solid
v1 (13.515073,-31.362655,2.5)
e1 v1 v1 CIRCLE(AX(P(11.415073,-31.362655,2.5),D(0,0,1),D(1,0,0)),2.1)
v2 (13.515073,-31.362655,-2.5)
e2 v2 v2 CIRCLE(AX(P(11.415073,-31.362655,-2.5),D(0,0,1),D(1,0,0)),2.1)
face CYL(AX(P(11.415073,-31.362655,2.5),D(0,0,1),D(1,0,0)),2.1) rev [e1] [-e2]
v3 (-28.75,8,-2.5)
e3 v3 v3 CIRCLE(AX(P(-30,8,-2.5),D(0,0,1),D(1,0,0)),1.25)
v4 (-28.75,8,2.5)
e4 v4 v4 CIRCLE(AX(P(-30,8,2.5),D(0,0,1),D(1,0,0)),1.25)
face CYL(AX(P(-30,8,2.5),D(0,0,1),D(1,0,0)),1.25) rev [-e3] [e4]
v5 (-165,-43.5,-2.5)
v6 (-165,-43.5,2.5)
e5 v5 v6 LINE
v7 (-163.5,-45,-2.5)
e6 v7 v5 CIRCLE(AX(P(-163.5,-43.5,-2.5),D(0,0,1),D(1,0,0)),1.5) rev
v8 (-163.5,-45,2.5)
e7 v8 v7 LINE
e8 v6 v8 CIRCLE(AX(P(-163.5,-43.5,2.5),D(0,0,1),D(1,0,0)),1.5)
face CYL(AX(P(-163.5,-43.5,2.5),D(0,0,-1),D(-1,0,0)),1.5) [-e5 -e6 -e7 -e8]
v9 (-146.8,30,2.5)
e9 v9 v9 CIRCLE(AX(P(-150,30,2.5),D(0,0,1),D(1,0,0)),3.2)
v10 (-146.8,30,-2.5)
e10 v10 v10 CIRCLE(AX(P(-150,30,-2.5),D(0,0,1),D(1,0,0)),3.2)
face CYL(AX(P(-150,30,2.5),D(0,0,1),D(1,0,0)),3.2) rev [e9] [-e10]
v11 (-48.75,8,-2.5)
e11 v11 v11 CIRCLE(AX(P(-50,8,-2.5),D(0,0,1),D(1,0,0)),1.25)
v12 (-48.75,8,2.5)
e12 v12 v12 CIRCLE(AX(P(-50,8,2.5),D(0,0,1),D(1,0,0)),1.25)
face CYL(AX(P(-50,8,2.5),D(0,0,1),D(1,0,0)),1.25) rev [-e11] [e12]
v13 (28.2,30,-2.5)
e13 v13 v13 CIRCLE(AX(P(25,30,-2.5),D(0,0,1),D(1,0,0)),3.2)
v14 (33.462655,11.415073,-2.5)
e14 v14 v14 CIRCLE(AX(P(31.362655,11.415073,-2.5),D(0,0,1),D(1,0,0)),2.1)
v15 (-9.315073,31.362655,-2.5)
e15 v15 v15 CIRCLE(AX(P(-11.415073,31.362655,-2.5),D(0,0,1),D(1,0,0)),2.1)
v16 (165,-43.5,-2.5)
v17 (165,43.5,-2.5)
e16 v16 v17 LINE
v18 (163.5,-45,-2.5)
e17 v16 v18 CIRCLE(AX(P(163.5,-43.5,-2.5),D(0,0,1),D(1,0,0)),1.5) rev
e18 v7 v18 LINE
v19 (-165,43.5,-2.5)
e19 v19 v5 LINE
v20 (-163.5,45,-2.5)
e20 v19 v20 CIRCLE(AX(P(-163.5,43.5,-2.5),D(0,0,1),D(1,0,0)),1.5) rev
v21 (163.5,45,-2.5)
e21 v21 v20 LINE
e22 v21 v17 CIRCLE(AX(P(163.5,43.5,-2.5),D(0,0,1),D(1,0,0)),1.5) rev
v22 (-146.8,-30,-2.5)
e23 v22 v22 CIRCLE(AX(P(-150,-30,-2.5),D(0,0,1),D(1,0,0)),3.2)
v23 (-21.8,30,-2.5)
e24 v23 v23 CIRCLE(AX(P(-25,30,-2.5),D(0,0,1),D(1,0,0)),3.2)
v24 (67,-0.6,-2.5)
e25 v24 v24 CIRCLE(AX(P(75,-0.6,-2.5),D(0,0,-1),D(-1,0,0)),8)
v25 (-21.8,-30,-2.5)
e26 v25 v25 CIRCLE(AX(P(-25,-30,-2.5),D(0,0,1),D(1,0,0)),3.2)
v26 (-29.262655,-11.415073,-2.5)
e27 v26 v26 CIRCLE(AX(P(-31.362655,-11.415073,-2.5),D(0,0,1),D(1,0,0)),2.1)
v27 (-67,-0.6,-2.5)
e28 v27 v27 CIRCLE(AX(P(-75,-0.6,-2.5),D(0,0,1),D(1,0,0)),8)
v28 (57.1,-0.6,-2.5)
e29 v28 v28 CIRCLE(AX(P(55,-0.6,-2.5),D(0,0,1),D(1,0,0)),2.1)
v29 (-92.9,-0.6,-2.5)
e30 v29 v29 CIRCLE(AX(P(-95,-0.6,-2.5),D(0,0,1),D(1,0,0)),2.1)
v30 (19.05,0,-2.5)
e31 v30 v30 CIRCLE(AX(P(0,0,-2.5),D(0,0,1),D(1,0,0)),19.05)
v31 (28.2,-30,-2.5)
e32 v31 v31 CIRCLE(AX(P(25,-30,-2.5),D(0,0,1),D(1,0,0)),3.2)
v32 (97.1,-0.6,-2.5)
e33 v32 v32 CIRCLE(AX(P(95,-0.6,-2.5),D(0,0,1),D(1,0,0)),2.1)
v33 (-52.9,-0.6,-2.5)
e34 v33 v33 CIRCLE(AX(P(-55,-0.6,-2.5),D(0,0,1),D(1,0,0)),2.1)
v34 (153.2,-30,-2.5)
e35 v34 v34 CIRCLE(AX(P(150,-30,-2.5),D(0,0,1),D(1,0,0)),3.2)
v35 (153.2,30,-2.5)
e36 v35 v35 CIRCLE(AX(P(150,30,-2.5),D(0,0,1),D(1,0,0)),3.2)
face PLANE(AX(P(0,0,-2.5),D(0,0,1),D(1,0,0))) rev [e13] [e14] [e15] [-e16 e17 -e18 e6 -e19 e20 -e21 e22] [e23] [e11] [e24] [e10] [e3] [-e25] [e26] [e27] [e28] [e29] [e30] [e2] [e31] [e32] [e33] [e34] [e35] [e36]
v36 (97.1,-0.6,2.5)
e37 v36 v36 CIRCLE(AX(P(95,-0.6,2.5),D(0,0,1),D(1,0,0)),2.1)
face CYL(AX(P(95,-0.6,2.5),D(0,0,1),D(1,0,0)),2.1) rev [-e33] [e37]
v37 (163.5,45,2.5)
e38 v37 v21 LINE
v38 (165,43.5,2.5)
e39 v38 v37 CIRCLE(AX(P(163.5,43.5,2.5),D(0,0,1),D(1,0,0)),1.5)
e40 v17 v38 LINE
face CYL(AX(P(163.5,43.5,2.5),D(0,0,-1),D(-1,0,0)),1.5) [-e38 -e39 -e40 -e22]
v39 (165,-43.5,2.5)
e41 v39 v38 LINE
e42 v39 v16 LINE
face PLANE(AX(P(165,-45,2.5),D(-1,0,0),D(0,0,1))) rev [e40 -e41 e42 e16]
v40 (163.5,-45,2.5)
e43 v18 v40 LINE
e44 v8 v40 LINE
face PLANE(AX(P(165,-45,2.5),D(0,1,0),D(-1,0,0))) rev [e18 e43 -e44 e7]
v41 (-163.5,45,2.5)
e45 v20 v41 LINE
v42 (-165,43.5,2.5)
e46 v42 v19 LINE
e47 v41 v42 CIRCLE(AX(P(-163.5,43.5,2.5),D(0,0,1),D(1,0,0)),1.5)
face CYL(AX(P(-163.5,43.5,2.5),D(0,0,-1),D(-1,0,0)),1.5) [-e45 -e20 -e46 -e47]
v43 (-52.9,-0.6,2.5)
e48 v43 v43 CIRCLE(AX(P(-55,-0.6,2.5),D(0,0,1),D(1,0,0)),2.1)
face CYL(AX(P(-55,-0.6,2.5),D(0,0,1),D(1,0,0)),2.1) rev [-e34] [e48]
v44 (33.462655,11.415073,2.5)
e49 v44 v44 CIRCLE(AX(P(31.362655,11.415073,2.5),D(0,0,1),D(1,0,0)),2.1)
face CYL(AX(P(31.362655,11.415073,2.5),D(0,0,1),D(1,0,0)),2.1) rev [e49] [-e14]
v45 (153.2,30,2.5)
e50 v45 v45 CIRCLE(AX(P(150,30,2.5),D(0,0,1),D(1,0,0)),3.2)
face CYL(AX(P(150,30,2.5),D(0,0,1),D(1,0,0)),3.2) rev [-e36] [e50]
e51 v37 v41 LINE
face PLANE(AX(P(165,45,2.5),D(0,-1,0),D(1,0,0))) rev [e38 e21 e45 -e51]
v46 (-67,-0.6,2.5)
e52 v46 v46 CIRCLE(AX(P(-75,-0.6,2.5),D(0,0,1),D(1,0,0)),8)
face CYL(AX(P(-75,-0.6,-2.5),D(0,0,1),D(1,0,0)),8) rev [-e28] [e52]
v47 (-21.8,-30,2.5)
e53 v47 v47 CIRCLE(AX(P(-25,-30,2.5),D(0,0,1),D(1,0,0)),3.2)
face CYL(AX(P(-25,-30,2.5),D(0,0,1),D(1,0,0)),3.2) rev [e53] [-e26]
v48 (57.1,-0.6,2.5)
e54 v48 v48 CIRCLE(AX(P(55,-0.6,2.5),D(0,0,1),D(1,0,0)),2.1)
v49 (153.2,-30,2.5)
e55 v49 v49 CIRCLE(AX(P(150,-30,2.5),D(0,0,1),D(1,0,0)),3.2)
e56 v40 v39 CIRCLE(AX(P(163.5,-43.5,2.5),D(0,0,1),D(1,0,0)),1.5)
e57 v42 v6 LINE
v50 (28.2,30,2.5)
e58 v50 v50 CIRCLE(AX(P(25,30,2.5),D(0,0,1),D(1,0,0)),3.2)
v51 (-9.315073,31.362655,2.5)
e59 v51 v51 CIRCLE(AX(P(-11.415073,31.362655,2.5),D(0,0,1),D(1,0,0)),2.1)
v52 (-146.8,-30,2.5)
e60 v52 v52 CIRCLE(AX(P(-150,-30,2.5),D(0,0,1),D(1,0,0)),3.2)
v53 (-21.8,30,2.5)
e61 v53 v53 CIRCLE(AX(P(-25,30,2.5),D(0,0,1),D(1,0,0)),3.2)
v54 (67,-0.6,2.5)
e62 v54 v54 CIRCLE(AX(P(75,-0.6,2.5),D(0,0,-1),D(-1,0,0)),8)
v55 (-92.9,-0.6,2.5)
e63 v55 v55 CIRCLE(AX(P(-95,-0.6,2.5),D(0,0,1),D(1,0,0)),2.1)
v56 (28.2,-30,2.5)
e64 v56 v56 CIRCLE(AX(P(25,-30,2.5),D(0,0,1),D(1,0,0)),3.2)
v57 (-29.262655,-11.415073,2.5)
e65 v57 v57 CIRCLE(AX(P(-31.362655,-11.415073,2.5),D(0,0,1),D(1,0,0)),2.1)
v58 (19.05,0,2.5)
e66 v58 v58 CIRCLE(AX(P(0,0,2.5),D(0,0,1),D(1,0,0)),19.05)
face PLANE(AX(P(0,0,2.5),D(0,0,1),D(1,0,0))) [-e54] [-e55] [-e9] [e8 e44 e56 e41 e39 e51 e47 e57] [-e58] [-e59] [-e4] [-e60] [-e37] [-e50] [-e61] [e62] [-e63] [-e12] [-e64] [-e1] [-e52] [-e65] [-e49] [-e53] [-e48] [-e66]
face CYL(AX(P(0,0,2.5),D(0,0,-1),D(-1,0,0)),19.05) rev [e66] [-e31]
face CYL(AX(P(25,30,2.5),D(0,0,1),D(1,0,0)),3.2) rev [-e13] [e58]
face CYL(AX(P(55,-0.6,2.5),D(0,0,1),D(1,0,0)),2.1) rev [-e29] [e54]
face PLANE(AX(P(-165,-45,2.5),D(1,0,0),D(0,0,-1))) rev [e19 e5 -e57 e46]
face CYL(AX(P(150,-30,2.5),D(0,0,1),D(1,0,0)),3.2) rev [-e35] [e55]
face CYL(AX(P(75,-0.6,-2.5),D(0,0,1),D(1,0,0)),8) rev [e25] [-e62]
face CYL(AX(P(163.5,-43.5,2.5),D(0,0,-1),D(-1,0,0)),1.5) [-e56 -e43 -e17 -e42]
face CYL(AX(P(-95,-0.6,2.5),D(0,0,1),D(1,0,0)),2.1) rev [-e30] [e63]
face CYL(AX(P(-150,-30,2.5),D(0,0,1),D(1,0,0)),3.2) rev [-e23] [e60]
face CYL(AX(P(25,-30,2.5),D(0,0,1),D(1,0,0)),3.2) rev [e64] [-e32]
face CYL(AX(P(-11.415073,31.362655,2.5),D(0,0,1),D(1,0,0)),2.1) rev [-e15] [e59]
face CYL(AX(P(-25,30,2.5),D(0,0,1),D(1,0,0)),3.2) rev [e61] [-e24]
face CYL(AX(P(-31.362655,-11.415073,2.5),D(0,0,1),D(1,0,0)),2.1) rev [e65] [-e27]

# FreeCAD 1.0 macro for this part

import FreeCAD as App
import Part
import Sketcher

V = App.Vector


def edges_at(feature, points):
    """Names of the edges that pass closest to the given points."""
    edges = feature.Shape.Edges
    near = lambda p: min(range(len(edges)), key=lambda i: edges[i].distToShape(Part.Vertex(*p))[0])
    return sorted({f"Edge{near(p) + 1}" for p in points})

doc = App.newDocument("Part")
params = doc.addObject("Spreadsheet::Sheet", "Params")
for row, (alias, value) in enumerate([
    ("sketch1_diameter", "38.1 mm"),
    ("sketch1_width", "330 mm"),
    ("sketch1_height", "90 mm"),
    ("pad1_length", "5 mm"),
    ("sketch2_diameter", "6.4 mm"),
    ("hole_diameter", "6.4 mm"),
    ("sketch3_diameter", "16 mm"),
    ("sketch4_diameter", "4.2 mm"),
    ("hole2_diameter", "4.2 mm"),
    ("sketch5_diameter", "4.2 mm"),
    ("hole3_diameter", "4.2 mm"),
    ("fillet_radius", "1.5 mm"),
    ("sketch6_diameter", "2.5 mm"),
    ("hole4_diameter", "2.5 mm"),
], start=1):
    params.set(f"A{row}", alias)
    params.set(f"B{row}", "=" + value)
    params.setAlias(f"B{row}", alias)

body = doc.addObject("PartDesign::Body", "Body")

sketch1 = body.newObject("Sketcher::SketchObject", "Sketch")
sketch1.AttachmentSupport = (doc.getObject("XY_Plane"), [""])
sketch1.MapMode = "FlatFace"
sketch1.addGeometry(Part.LineSegment(V(-165, 45, 0), V(-165, -45, 0)), False)
sketch1.addGeometry(Part.LineSegment(V(-165, -45, 0), V(165, -45, 0)), False)
sketch1.addGeometry(Part.LineSegment(V(165, -45, 0), V(165, 45, 0)), False)
sketch1.addGeometry(Part.LineSegment(V(165, 45, 0), V(-165, 45, 0)), False)
sketch1.addGeometry(Part.Circle(V(0, 0, 0), V(0, 0, 1), 19), False)
sketch1.addConstraint(Sketcher.Constraint("Coincident", 0, 2, 1, 1))
sketch1.addConstraint(Sketcher.Constraint("Coincident", 1, 2, 2, 1))
sketch1.addConstraint(Sketcher.Constraint("Coincident", 2, 2, 3, 1))
sketch1.addConstraint(Sketcher.Constraint("Coincident", 3, 2, 0, 1))
sketch1.addConstraint(Sketcher.Constraint("Vertical", 0))
sketch1.addConstraint(Sketcher.Constraint("Horizontal", 1))
sketch1.addConstraint(Sketcher.Constraint("Vertical", 2))
sketch1.addConstraint(Sketcher.Constraint("Horizontal", 3))
sketch1.addConstraint(Sketcher.Constraint("Coincident", 4, 3, -1, 1))
sketch1.addConstraint(Sketcher.Constraint("Symmetric", 0, 2, 2, 2, -1, 1))
sketch1.addConstraint(Sketcher.Constraint("Diameter", 4, 38.1))
sketch1.addConstraint(Sketcher.Constraint("DistanceX", 1, 1, 1, 2, 330.0))
sketch1.addConstraint(Sketcher.Constraint("DistanceY", 0, 2, 0, 1, 90.0))
sketch1.setExpression("Constraints[10]", "Params.sketch1_diameter")
sketch1.setExpression("Constraints[11]", "Params.sketch1_width")
sketch1.setExpression("Constraints[12]", "Params.sketch1_height")
pad1 = body.newObject("PartDesign::Pad", "Pad")
pad1.Profile = sketch1
pad1.setExpression("Length", "Params.pad1_length")
pad1.Midplane = True

sketch2 = body.newObject("Sketcher::SketchObject", "Sketch001")
sketch2.AttachmentSupport = (doc.getObject("XY_Plane"), [""])
sketch2.MapMode = "FlatFace"
sketch2.AttachmentOffset = App.Placement(V(0, 0, 2.5), App.Rotation())
sketch2.addGeometry(Part.Circle(V(-150, 30, 0), V(0, 0, 1), 3.2), False)
sketch2.addGeometry(Part.Circle(V(-25, 30, 0), V(0, 0, 1), 3.2), False)
sketch2.addGeometry(Part.Circle(V(-25, -30, 0), V(0, 0, 1), 3.2), False)
sketch2.addGeometry(Part.Circle(V(-150, -30, 0), V(0, 0, 1), 3.2), False)
sketch2.addConstraint(Sketcher.Constraint("Equal", 0, 1))
sketch2.addConstraint(Sketcher.Constraint("Equal", 1, 2))
sketch2.addConstraint(Sketcher.Constraint("Equal", 2, 3))
sketch2.addConstraint(Sketcher.Constraint("Symmetric", 1, 3, 2, 3, -1))
sketch2.addConstraint(Sketcher.Constraint("Symmetric", 0, 3, 3, 3, -1))
sketch2.addConstraint(Sketcher.Constraint("Horizontal", 0, 3, 1, 3))
sketch2.addConstraint(Sketcher.Constraint("Diameter", 0, 6.4))
sketch2.addConstraint(Sketcher.Constraint("DistanceX", 0, 3, -1, 1, 150.0))
sketch2.addConstraint(Sketcher.Constraint("DistanceY", -1, 1, 0, 3, 30.0))
sketch2.addConstraint(Sketcher.Constraint("DistanceX", 1, 3, -1, 1, 25.0))
sketch2.setExpression("Constraints[6]", "Params.sketch2_diameter")
doc.recompute()
hole = body.newObject("PartDesign::Hole", "Hole")
hole.Profile = sketch2
hole.ThreadType = "None"
hole.setExpression("Diameter", "Params.hole_diameter")
hole.DepthType = "ThroughAll"
doc.recompute()

mirrored = body.newObject("PartDesign::Mirrored", "Mirrored")
mirrored.Originals = [hole]
mirrored.MirrorPlane = (doc.getObject("YZ_Plane"), [""])
body.Tip = mirrored

sketch3 = body.newObject("Sketcher::SketchObject", "Sketch002")
sketch3.AttachmentSupport = (doc.getObject("XY_Plane"), [""])
sketch3.MapMode = "FlatFace"
sketch3.AttachmentOffset = App.Placement(V(0, 0, 2.5), App.Rotation())
sketch3.addGeometry(Part.Circle(V(-75, -1, 0), V(0, 0, 1), 8), False)
sketch3.addConstraint(Sketcher.Constraint("Diameter", 0, 16.0))
sketch3.addConstraint(Sketcher.Constraint("DistanceX", 0, 3, -1, 1, 75.0))
sketch3.addConstraint(Sketcher.Constraint("DistanceY", 0, 3, -1, 1, 0.6))
sketch3.setExpression("Constraints[0]", "Params.sketch3_diameter")
pocket1 = body.newObject("PartDesign::Pocket", "Pocket")
pocket1.Profile = sketch3
pocket1.Type = "ThroughAll"

sketch4 = body.newObject("Sketcher::SketchObject", "Sketch003")
sketch4.AttachmentSupport = (doc.getObject("XY_Plane"), [""])
sketch4.MapMode = "FlatFace"
sketch4.AttachmentOffset = App.Placement(V(0, 0, 2.5), App.Rotation())
sketch4.addGeometry(Part.Circle(V(-95, -0.6, 0), V(0, 0, 1), 2.1), False)
sketch4.addGeometry(Part.Circle(V(-55, -0.6, 0), V(0, 0, 1), 2.1), False)
sketch4.addConstraint(Sketcher.Constraint("Equal", 0, 1))
sketch4.addConstraint(Sketcher.Constraint("Horizontal", 0, 3, 1, 3))
sketch4.addConstraint(Sketcher.Constraint("Diameter", 0, 4.2))
sketch4.addConstraint(Sketcher.Constraint("DistanceX", 0, 3, -1, 1, 95.0))
sketch4.addConstraint(Sketcher.Constraint("DistanceX", 1, 3, -1, 1, 55.0))
sketch4.addConstraint(Sketcher.Constraint("DistanceY", 0, 3, -1, 1, 0.6))
sketch4.setExpression("Constraints[2]", "Params.sketch4_diameter")
doc.recompute()
hole2 = body.newObject("PartDesign::Hole", "Hole001")
hole2.Profile = sketch4
hole2.ThreadType = "None"
hole2.setExpression("Diameter", "Params.hole2_diameter")
hole2.DepthType = "ThroughAll"
doc.recompute()

mirrored2 = body.newObject("PartDesign::Mirrored", "Mirrored001")
mirrored2.Originals = [pocket1, hole2]
mirrored2.MirrorPlane = (doc.getObject("YZ_Plane"), [""])
body.Tip = mirrored2

sketch5 = body.newObject("Sketcher::SketchObject", "Sketch004")
sketch5.AttachmentSupport = (doc.getObject("XY_Plane"), [""])
sketch5.MapMode = "FlatFace"
sketch5.AttachmentOffset = App.Placement(V(0, 0, 2.5), App.Rotation())
sketch5.addGeometry(Part.Circle(V(-11.4, 31.4, 0), V(0, 0, 1), 2.1), False)
sketch5.addGeometry(Part.Circle(V(11.4, -31.4, 0), V(0, 0, 1), 2.1), False)
sketch5.addGeometry(Part.Circle(V(-31.4, -11.4, 0), V(0, 0, 1), 2.1), False)
sketch5.addGeometry(Part.Circle(V(31.4, 11.4, 0), V(0, 0, 1), 2.1), False)
sketch5.addConstraint(Sketcher.Constraint("Equal", 0, 1))
sketch5.addConstraint(Sketcher.Constraint("Equal", 1, 2))
sketch5.addConstraint(Sketcher.Constraint("Equal", 2, 3))
sketch5.addConstraint(Sketcher.Constraint("Symmetric", 0, 3, 1, 3, -1, 1))
sketch5.addConstraint(Sketcher.Constraint("Symmetric", 2, 3, 3, 3, -1, 1))
sketch5.addConstraint(Sketcher.Constraint("Diameter", 0, 4.2))
sketch5.addConstraint(Sketcher.Constraint("DistanceY", 1, 3, 0, 3, 62.72531))
sketch5.addConstraint(Sketcher.Constraint("DistanceX", 2, 3, 0, 3, 19.947582))
sketch5.addConstraint(Sketcher.Constraint("DistanceY", 1, 3, 2, 3, 19.947582))
sketch5.addConstraint(Sketcher.Constraint("DistanceX", 2, 3, 3, 3, 62.72531))
sketch5.setExpression("Constraints[5]", "Params.sketch5_diameter")
doc.recompute()
hole3 = body.newObject("PartDesign::Hole", "Hole002")
hole3.Profile = sketch5
hole3.ThreadType = "None"
hole3.setExpression("Diameter", "Params.hole3_diameter")
hole3.DepthType = "ThroughAll"
doc.recompute()

fillet = body.newObject("PartDesign::Fillet", "Fillet")
fillet.Base = (hole3, edges_at(hole3, [
    (-165, 45, 0),
    (165, 45, 0),
    (165, -45, 0),
    (-165, -45, 0),
]))
fillet.setExpression("Radius", "Params.fillet_radius")

sketch6 = body.newObject("Sketcher::SketchObject", "Sketch005")
sketch6.AttachmentSupport = (doc.getObject("XY_Plane"), [""])
sketch6.MapMode = "FlatFace"
sketch6.AttachmentOffset = App.Placement(V(0, 0, 2.5), App.Rotation())
sketch6.addGeometry(Part.Circle(V(-50, 8, 0), V(0, 0, 1), 1.2), False)
sketch6.addGeometry(Part.Circle(V(-30, 8, 0), V(0, 0, 1), 1.2), False)
sketch6.addConstraint(Sketcher.Constraint("Equal", 0, 1))
sketch6.addConstraint(Sketcher.Constraint("Horizontal", 0, 3, 1, 3))
sketch6.addConstraint(Sketcher.Constraint("Diameter", 0, 2.5))
sketch6.addConstraint(Sketcher.Constraint("DistanceX", 0, 3, -1, 1, 50.0))
sketch6.addConstraint(Sketcher.Constraint("DistanceY", -1, 1, 0, 3, 8.0))
sketch6.addConstraint(Sketcher.Constraint("DistanceX", 1, 3, -1, 1, 30.0))
sketch6.setExpression("Constraints[2]", "Params.sketch6_diameter")
doc.recompute()
hole4 = body.newObject("PartDesign::Hole", "Hole003")
hole4.Profile = sketch6
hole4.ThreadType = "None"
hole4.setExpression("Diameter", "Params.hole4_diameter")
hole4.DepthType = "ThroughAll"

doc.recompute()
